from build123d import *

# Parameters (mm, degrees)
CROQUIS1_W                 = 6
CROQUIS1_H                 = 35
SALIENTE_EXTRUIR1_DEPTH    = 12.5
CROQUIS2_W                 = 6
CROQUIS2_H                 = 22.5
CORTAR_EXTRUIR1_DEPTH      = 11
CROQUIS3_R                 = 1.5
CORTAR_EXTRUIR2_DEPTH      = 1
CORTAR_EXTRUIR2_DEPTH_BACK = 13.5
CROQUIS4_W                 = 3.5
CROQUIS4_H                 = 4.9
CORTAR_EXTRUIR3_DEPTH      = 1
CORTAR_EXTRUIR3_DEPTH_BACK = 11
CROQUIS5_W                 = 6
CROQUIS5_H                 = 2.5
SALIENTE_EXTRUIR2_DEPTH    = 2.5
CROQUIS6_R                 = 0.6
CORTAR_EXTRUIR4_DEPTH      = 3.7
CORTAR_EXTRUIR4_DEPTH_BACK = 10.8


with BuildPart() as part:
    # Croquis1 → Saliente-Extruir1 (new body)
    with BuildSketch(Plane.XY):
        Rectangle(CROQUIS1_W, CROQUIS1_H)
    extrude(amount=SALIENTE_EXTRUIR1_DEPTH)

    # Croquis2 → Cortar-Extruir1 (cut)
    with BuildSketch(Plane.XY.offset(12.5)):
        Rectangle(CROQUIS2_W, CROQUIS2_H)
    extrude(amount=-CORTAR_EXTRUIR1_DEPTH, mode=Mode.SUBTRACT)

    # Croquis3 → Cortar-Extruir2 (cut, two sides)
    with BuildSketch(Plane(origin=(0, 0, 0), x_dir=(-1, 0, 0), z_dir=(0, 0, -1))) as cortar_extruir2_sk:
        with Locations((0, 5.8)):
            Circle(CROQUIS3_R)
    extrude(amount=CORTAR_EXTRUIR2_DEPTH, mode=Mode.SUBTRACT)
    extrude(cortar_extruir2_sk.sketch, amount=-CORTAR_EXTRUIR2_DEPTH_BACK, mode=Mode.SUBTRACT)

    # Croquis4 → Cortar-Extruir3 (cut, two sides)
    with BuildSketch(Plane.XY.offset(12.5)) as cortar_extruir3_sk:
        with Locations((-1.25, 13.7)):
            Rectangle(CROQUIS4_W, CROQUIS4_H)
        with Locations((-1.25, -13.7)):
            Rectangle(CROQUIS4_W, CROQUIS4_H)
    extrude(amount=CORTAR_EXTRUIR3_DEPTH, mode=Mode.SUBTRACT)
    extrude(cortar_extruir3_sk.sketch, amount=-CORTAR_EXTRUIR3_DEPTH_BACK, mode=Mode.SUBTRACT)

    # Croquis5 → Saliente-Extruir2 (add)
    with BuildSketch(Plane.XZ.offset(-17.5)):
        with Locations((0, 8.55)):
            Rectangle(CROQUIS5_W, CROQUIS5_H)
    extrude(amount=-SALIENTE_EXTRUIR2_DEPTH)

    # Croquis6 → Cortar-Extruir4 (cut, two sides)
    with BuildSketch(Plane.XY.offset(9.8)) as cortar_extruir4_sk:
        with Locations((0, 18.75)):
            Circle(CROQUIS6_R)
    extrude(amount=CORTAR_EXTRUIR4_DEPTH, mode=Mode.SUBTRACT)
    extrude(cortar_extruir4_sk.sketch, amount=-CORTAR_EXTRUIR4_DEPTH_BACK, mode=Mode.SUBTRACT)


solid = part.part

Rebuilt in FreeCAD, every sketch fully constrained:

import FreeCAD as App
import Part
import Sketcher

V = App.Vector


def add_polygon(sketch, points):
    """Adds a closed chain of lines whose ends are joined by coincident constraints."""
    first, n = sketch.GeometryCount, len(points)
    for a, b in zip(points, points[1:] + points[:1]):
        sketch.addGeometry(Part.LineSegment(App.Vector(*a, 0), App.Vector(*b, 0)), False)
    for i in range(n):
        sketch.addConstraint(Sketcher.Constraint("Coincident", first + i, 2, first + (i + 1) % n, 1))

doc = App.newDocument("Part")
body = doc.addObject("PartDesign::Body", "Body")

# Sketch on XY plane
sketch1 = body.newObject("Sketcher::SketchObject", "Sketch")
sketch1.AttachmentSupport = (doc.getObject("XY_Plane"), [""])
sketch1.MapMode = "FlatFace"
add_polygon(sketch1, [(-3, 18), (-3, -18), (3, -18), (3, 18)])  # lines 0-3
sketch1.addConstraint([
    Sketcher.Constraint("Vertical", 0),
    Sketcher.Constraint("Horizontal", 1),
    Sketcher.Constraint("Vertical", 2),
    Sketcher.Constraint("Horizontal", 3),
    Sketcher.Constraint("Symmetric", 0, 2, 2, 2, -1, 1),
    Sketcher.Constraint("DistanceX", 1, 1, 1, 2, 6.0),
    Sketcher.Constraint("DistanceY", 0, 2, 0, 1, 35.0),
])
pad1 = body.newObject("PartDesign::Pad", "Pad")
pad1.Profile = sketch1
pad1.Length = 12.5

# Sketch on XY plane
sketch2 = body.newObject("Sketcher::SketchObject", "Sketch001")
sketch2.AttachmentSupport = (doc.getObject("XY_Plane"), [""])
sketch2.MapMode = "FlatFace"
sketch2.AttachmentOffset = App.Placement(V(0, 0, 12.5), App.Rotation())
add_polygon(sketch2, [(-3, 11), (-3, -11), (3, -11), (3, 11)])  # lines 0-3
sketch2.addConstraint([
    Sketcher.Constraint("Vertical", 0),
    Sketcher.Constraint("Horizontal", 1),
    Sketcher.Constraint("Vertical", 2),
    Sketcher.Constraint("Horizontal", 3),
    Sketcher.Constraint("Symmetric", 0, 2, 2, 2, -1, 1),
    Sketcher.Constraint("DistanceX", 1, 1, 1, 2, 6.0),
    Sketcher.Constraint("DistanceY", 0, 2, 0, 1, 22.5),
])
pocket1 = body.newObject("PartDesign::Pocket", "Pocket")
pocket1.Profile = sketch2
pocket1.Length = 11

# Sketch on XY plane
sketch3 = body.newObject("Sketcher::SketchObject", "Sketch002")
sketch3.AttachmentSupport = (doc.getObject("XY_Plane"), [""])
sketch3.MapMode = "FlatFace"
sketch3.addGeometry(Part.Circle(V(0, 5.8, 0), V(0, 0, 1), 1.5), False)
sketch3.addConstraint([
    Sketcher.Constraint("PointOnObject", 0, 3, -2),
    Sketcher.Constraint("Diameter", 0, 3.0),
    Sketcher.Constraint("DistanceY", -1, 1, 0, 3, 5.8),
])
pocket2 = body.newObject("PartDesign::Pocket", "Pocket001")
pocket2.Profile = sketch3
pocket2.Type = "ThroughAll"
pocket2.Midplane = True

# Sketch on XY plane
sketch4 = body.newObject("Sketcher::SketchObject", "Sketch003")
sketch4.AttachmentSupport = (doc.getObject("XY_Plane"), [""])
sketch4.MapMode = "FlatFace"
sketch4.AttachmentOffset = App.Placement(V(0, 0, 12.5), App.Rotation())
add_polygon(sketch4, [(-3, 16.1), (-3, 11.2), (0.5, 11.2), (0.5, 16.1)])  # lines 0-3
add_polygon(sketch4, [(-3, -11.2), (-3, -16.1), (0.5, -16.1), (0.5, -11.2)])  # lines 4-7
sketch4.addConstraint([
    Sketcher.Constraint("Vertical", 0),
    Sketcher.Constraint("Horizontal", 1),
    Sketcher.Constraint("Vertical", 2),
    Sketcher.Constraint("Horizontal", 3),
    Sketcher.Constraint("Vertical", 4),
    Sketcher.Constraint("Horizontal", 5),
    Sketcher.Constraint("Vertical", 6),
    Sketcher.Constraint("Horizontal", 7),
    Sketcher.Constraint("Symmetric", 3, 2, 4, 2, -1),
    Sketcher.Constraint("Symmetric", 1, 2, 6, 2, -1),
    Sketcher.Constraint("DistanceX", 1, 1, 1, 2, 3.5),
    Sketcher.Constraint("DistanceY", 0, 2, 0, 1, 4.9),
    Sketcher.Constraint("DistanceX", 0, 2, -1, 1, 3.0),
    Sketcher.Constraint("DistanceY", 4, 2, 0, 2, 27.4),
])
pocket3 = body.newObject("PartDesign::Pocket", "Pocket002")
pocket3.Profile = sketch4
pocket3.Type = "TwoLengths"
pocket3.Length = 1
pocket3.Length2 = 11
pocket3.Reversed = True

# Sketch on XZ plane
sketch5 = body.newObject("Sketcher::SketchObject", "Sketch004")
sketch5.AttachmentSupport = (doc.getObject("XZ_Plane"), [""])
sketch5.MapMode = "FlatFace"
sketch5.AttachmentOffset = App.Placement(V(0, 0, -17.5), App.Rotation())
add_polygon(sketch5, [(-3, 9.8), (-3, 7.3), (3, 7.3), (3, 9.8)])  # lines 0-3
sketch5.addConstraint([
    Sketcher.Constraint("Vertical", 0),
    Sketcher.Constraint("Horizontal", 1),
    Sketcher.Constraint("Vertical", 2),
    Sketcher.Constraint("Horizontal", 3),
    Sketcher.Constraint("DistanceX", 1, 1, 1, 2, 6.0),
    Sketcher.Constraint("DistanceY", 0, 2, 0, 1, 2.5),
    Sketcher.Constraint("DistanceX", 0, 2, -1, 1, 3.0),
    Sketcher.Constraint("DistanceY", -1, 1, 0, 2, 7.3),
])
pad2 = body.newObject("PartDesign::Pad", "Pad001")
pad2.Profile = sketch5
pad2.Length = 2.5
pad2.Reversed = True

# Sketch on XY plane
sketch6 = body.newObject("Sketcher::SketchObject", "Sketch005")
sketch6.AttachmentSupport = (doc.getObject("XY_Plane"), [""])
sketch6.MapMode = "FlatFace"
sketch6.AttachmentOffset = App.Placement(V(0, 0, 9.8), App.Rotation())
sketch6.addGeometry(Part.Circle(V(0, 18.8, 0), V(0, 0, 1), 0.6), False)
sketch6.addConstraint([
    Sketcher.Constraint("PointOnObject", 0, 3, -2),
    Sketcher.Constraint("Diameter", 0, 1.2),
    Sketcher.Constraint("DistanceY", -1, 1, 0, 3, 18.75),
])
pocket4 = body.newObject("PartDesign::Pocket", "Pocket003")
pocket4.Profile = sketch6
pocket4.Type = "ThroughAll"
pocket4.Midplane = True

doc.recompute()
